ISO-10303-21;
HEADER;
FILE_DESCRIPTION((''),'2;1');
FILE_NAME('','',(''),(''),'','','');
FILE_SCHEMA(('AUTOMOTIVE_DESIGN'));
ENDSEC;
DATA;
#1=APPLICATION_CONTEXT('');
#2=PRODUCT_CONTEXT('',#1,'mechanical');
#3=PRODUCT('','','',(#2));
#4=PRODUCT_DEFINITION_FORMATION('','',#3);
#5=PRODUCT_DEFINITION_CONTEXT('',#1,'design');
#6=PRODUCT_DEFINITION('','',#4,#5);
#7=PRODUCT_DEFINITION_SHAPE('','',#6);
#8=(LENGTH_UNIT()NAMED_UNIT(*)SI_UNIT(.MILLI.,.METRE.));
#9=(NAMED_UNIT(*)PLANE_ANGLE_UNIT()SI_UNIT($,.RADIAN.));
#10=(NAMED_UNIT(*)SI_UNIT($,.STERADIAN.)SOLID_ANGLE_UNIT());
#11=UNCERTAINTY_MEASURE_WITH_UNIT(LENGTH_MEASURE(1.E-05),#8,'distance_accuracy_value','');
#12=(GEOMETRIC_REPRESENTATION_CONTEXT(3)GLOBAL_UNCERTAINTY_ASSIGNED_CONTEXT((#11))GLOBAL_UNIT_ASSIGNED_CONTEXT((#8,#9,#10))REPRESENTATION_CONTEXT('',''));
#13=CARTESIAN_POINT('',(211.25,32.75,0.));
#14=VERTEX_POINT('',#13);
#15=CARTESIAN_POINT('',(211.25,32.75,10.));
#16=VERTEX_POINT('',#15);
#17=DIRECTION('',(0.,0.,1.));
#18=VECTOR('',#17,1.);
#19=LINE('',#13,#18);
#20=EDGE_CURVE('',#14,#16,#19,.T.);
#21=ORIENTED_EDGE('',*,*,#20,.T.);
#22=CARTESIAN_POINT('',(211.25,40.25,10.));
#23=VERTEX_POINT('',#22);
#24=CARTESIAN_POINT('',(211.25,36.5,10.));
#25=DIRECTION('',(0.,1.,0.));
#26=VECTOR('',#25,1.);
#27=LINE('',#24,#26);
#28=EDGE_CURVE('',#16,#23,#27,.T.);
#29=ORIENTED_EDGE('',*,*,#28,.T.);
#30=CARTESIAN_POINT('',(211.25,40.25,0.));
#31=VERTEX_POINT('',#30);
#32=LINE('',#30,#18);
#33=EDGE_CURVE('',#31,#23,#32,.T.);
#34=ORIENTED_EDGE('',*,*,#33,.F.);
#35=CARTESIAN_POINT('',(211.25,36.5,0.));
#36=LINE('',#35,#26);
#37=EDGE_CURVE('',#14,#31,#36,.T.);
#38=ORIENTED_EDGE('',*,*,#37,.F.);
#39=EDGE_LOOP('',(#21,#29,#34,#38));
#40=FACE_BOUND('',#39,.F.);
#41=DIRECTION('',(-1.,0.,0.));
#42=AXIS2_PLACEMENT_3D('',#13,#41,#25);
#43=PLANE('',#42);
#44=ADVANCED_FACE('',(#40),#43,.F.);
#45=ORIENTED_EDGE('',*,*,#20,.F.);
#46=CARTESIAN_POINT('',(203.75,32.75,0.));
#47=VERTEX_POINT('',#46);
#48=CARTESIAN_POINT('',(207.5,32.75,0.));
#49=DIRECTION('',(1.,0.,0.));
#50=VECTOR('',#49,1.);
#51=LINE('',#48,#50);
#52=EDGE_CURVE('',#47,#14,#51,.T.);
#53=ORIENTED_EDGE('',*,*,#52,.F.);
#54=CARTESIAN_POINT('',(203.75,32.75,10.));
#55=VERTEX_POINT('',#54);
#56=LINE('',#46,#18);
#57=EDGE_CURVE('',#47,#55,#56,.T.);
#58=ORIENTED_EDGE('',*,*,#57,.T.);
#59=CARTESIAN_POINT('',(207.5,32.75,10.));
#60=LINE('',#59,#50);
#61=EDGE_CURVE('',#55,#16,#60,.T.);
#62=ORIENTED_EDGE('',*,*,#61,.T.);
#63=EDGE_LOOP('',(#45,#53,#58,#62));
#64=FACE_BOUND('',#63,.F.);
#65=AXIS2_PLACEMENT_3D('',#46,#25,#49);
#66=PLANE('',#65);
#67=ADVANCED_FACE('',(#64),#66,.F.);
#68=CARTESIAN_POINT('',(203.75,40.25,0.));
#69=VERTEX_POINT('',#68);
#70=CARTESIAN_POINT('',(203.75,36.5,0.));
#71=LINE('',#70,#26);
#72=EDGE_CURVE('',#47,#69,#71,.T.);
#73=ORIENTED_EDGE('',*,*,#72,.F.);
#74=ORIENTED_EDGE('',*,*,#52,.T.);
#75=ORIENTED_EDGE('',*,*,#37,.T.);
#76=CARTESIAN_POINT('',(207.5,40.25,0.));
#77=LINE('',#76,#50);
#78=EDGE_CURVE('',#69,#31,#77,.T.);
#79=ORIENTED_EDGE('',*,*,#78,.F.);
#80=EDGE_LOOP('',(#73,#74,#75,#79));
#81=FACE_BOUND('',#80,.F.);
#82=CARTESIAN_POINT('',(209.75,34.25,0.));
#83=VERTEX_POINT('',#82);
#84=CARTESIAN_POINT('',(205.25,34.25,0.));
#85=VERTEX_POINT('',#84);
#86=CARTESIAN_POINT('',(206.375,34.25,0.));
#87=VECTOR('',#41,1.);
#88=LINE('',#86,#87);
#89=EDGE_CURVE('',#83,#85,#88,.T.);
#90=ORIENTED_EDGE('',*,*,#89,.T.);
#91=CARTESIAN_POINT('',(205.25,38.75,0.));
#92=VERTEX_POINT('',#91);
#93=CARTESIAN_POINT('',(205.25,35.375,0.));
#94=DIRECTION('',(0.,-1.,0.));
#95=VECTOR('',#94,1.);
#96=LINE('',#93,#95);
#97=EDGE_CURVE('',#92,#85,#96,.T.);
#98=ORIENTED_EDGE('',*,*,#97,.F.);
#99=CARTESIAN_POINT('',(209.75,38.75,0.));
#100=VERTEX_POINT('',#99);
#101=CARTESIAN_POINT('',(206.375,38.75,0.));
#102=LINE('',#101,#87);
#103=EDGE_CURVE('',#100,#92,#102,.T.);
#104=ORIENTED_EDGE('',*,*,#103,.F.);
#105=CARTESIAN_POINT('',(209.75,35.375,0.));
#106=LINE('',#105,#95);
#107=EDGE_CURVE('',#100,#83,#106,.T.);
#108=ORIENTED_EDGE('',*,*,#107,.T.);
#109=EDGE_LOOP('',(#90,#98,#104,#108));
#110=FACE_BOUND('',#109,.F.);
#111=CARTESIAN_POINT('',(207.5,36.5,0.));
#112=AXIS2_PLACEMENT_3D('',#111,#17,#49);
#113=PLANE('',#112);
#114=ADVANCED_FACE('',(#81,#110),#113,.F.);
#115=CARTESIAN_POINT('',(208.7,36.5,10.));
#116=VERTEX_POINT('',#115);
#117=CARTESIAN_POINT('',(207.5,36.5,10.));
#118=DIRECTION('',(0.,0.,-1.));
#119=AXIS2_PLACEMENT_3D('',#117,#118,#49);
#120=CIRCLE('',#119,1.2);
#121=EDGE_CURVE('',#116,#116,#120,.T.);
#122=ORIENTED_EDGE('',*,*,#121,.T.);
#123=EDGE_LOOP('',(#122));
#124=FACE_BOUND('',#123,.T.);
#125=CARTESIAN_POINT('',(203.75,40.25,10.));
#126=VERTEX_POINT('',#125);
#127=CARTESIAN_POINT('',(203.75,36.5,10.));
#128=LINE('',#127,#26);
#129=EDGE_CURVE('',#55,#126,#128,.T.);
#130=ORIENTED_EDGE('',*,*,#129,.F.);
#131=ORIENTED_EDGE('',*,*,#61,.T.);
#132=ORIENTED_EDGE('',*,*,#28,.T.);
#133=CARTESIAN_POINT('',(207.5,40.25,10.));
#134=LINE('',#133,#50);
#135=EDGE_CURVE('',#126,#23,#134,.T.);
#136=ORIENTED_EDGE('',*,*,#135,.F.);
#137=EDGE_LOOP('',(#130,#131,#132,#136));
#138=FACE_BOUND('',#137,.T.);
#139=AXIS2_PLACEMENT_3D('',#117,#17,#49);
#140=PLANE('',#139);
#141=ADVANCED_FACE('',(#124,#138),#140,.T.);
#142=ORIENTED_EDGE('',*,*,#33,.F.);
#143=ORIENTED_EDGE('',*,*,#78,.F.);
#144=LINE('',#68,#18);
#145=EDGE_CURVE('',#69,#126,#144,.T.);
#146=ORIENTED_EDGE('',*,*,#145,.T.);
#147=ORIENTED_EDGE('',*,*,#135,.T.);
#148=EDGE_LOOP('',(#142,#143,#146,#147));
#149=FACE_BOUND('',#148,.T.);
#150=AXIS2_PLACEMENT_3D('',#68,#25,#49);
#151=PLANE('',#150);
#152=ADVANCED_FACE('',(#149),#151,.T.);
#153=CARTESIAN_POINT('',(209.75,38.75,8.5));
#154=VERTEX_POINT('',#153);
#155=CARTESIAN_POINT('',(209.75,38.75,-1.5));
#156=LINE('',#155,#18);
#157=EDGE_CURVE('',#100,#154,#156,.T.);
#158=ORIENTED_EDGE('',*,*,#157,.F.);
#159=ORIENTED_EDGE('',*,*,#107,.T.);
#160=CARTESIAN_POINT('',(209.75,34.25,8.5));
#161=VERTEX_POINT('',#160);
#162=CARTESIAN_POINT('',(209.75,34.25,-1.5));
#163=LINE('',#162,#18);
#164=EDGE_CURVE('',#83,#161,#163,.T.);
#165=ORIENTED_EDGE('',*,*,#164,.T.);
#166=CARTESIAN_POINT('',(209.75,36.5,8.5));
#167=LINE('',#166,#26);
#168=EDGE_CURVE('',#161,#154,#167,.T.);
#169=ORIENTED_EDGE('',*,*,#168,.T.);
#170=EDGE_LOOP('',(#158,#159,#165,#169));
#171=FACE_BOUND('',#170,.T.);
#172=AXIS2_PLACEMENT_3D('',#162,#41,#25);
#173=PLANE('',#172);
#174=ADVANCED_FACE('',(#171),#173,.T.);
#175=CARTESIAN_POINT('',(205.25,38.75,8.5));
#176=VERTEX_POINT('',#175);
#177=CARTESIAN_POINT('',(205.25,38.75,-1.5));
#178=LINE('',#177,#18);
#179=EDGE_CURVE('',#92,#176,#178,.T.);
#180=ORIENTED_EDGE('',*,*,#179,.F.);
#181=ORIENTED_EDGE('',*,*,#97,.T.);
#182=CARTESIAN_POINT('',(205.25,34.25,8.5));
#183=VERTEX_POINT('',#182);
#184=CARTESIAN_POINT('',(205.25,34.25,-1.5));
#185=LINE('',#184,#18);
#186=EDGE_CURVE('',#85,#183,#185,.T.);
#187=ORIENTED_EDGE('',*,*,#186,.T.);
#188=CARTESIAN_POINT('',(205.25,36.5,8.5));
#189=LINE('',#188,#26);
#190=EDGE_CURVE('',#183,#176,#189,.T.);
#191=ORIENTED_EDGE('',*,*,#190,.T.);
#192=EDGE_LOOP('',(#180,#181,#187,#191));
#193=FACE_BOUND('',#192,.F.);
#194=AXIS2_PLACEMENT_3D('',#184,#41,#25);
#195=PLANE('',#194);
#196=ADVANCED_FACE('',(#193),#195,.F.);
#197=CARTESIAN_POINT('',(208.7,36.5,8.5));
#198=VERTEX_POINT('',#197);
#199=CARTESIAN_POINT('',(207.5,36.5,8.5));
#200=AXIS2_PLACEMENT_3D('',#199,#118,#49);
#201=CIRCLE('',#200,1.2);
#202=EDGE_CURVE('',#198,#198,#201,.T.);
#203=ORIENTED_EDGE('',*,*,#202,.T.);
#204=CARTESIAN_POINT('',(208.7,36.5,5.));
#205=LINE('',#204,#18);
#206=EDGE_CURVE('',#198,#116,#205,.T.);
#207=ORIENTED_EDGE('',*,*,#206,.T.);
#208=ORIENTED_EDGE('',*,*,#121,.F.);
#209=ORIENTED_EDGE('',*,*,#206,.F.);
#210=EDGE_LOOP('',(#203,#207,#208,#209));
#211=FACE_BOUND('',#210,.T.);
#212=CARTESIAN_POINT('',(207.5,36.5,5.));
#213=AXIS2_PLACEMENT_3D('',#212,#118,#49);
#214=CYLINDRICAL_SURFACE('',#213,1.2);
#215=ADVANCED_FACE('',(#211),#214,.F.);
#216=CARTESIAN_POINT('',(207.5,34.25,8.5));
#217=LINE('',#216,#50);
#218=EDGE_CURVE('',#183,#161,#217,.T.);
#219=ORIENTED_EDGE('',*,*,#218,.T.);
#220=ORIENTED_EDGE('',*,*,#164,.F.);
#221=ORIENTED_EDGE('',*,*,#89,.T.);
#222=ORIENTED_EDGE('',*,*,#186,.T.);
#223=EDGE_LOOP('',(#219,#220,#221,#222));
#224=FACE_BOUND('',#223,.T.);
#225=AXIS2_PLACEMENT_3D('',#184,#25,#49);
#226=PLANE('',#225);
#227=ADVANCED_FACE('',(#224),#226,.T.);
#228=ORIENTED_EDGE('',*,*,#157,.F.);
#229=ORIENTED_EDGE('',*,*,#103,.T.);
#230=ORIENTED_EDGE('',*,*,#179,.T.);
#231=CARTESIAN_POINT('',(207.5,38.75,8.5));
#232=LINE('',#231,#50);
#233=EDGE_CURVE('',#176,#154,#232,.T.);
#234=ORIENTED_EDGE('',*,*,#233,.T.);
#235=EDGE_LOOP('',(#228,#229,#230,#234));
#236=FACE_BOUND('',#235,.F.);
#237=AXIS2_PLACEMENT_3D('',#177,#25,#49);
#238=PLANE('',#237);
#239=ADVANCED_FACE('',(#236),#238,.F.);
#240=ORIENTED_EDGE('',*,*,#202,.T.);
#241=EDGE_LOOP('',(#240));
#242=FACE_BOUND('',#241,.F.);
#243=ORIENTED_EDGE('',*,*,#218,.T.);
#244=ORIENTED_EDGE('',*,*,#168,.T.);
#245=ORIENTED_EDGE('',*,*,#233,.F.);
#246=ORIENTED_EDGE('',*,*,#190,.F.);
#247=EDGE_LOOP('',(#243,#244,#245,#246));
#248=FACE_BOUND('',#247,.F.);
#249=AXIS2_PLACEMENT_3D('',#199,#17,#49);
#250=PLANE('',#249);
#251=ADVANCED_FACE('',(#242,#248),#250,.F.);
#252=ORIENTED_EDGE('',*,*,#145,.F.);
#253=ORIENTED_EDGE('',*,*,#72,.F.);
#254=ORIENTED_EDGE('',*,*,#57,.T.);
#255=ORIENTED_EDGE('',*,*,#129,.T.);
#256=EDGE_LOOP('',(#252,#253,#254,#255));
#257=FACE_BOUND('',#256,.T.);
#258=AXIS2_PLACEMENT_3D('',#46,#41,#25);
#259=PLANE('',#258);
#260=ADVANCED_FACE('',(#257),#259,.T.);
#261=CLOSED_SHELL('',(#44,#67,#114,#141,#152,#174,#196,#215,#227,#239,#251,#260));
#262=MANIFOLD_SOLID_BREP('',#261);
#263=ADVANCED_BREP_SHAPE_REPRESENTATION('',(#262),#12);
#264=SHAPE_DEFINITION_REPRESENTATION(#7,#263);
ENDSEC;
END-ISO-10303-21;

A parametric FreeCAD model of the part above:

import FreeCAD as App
import Part
import Sketcher

V = App.Vector
Q = App.Units.Quantity


def add_polygon(sketch, points):
    """Adds a closed chain of lines whose ends are joined by coincident constraints."""
    first, n = sketch.GeometryCount, len(points)
    for a, b in zip(points, points[1:] + points[:1]):
        sketch.addGeometry(Part.LineSegment(App.Vector(*a, 0), App.Vector(*b, 0)), False)
    for i in range(n):
        sketch.addConstraint(Sketcher.Constraint("Coincident", first + i, 2, first + (i + 1) % n, 1))

doc = App.newDocument("Part")
body = doc.addObject("PartDesign::Body", "Body")

# Sketch on XY plane
sketch1 = doc.addObject("Sketcher::SketchObject", "Sketch")
body.addObject(sketch1)
sketch1.AttachmentSupport = (doc.XY_Plane, [""])
sketch1.MapMode = "FlatFace"
sketch1.AttachmentOffset = App.Placement(V(0, 0, 105), App.Rotation())
sketch1.addGeometry(Part.Circle(V(7.5, 16.5, 0), V(0, 0, 1), 1.2), False)
sketch1.addConstraint(Sketcher.Constraint("Diameter", 0, Q("2.4 mm")))
sketch1.addConstraint(Sketcher.Constraint("DistanceX", -1, 1, 0, 3, Q("7.5 mm")))
sketch1.addConstraint(Sketcher.Constraint("DistanceY", -1, 1, 0, 3, Q("16.5 mm")))
pad1 = doc.addObject("PartDesign::Pad", "Pad")
body.addObject(pad1)
pad1.Profile = sketch1
pad1.Length = 10
body2 = doc.addObject("PartDesign::Body", "Body001")

# Sketch on XY plane
sketch2 = doc.addObject("Sketcher::SketchObject", "Sketch001")
body2.addObject(sketch2)
sketch2.AttachmentSupport = (doc.getObject("XY_Plane001"), [""])
sketch2.MapMode = "FlatFace"
sketch2.AttachmentOffset = App.Placement(V(0, 0, 98.5), App.Rotation())
add_polygon(sketch2, [(5.25, 18.75), (5.25, 14.25), (9.75, 14.25), (9.75, 18.75)])  # lines 0-3
sketch2.addConstraint(Sketcher.Constraint("Vertical", 0))
sketch2.addConstraint(Sketcher.Constraint("Horizontal", 1))
sketch2.addConstraint(Sketcher.Constraint("Vertical", 2))
sketch2.addConstraint(Sketcher.Constraint("Horizontal", 3))
sketch2.addConstraint(Sketcher.Constraint("Equal", 3, 0))
sketch2.addConstraint(Sketcher.Constraint("DistanceX", 1, 1, 1, 2, Q("4.5 mm")))
sketch2.addConstraint(Sketcher.Constraint("DistanceX", -1, 1, 0, 2, Q("5.25 mm")))
sketch2.addConstraint(Sketcher.Constraint("DistanceY", -1, 1, 0, 2, Q("14.25 mm")))
pad2 = doc.addObject("PartDesign::Pad", "Pad001")
body2.addObject(pad2)
pad2.Profile = sketch2
pad2.Length = 10
body3 = doc.addObject("PartDesign::Body", "Body002")

# Sketch on XY plane
sketch3 = doc.addObject("Sketcher::SketchObject", "Sketch002")
body3.addObject(sketch3)
sketch3.AttachmentSupport = (doc.getObject("XY_Plane002"), [""])
sketch3.MapMode = "FlatFace"
sketch3.AttachmentOffset = App.Placement(V(0, 0, 100), App.Rotation())
add_polygon(sketch3, [(3.75, 20.25), (3.75, 12.75), (11.25, 12.75), (11.25, 20.25)])  # lines 0-3
sketch3.addConstraint(Sketcher.Constraint("Vertical", 0))
sketch3.addConstraint(Sketcher.Constraint("Horizontal", 1))
sketch3.addConstraint(Sketcher.Constraint("Vertical", 2))
sketch3.addConstraint(Sketcher.Constraint("Horizontal", 3))
sketch3.addConstraint(Sketcher.Constraint("Equal", 3, 0))
sketch3.addConstraint(Sketcher.Constraint("DistanceX", 1, 1, 1, 2, Q("7.5 mm")))
sketch3.addConstraint(Sketcher.Constraint("DistanceX", -1, 1, 0, 2, Q("3.75 mm")))
sketch3.addConstraint(Sketcher.Constraint("DistanceY", -1, 1, 0, 2, Q("12.75 mm")))
pad3 = doc.addObject("PartDesign::Pad", "Pad002")
body3.addObject(pad3)
pad3.Profile = sketch3
pad3.Length = 10
doc.recompute()

boolean = doc.addObject("PartDesign::Boolean", "Boolean")
body3.addObject(boolean)
boolean.Type = "Cut"
boolean.addObjects([body2])
doc.recompute()

boolean2 = doc.addObject("PartDesign::Boolean", "Boolean001")
body3.addObject(boolean2)
boolean2.Type = "Cut"
boolean2.addObjects([body])
body4 = doc.addObject("PartDesign::Body", "Body003")
doc.recompute()

body3.Placement = App.Placement(V(200, 20, -100), App.Rotation(V(0, 0, 1), 0))
boolean3 = doc.addObject("PartDesign::Boolean", "Boolean002")
body4.addObject(boolean3)
boolean3.Type = "Fuse"
boolean3.addObjects([body3])

doc.recompute()
